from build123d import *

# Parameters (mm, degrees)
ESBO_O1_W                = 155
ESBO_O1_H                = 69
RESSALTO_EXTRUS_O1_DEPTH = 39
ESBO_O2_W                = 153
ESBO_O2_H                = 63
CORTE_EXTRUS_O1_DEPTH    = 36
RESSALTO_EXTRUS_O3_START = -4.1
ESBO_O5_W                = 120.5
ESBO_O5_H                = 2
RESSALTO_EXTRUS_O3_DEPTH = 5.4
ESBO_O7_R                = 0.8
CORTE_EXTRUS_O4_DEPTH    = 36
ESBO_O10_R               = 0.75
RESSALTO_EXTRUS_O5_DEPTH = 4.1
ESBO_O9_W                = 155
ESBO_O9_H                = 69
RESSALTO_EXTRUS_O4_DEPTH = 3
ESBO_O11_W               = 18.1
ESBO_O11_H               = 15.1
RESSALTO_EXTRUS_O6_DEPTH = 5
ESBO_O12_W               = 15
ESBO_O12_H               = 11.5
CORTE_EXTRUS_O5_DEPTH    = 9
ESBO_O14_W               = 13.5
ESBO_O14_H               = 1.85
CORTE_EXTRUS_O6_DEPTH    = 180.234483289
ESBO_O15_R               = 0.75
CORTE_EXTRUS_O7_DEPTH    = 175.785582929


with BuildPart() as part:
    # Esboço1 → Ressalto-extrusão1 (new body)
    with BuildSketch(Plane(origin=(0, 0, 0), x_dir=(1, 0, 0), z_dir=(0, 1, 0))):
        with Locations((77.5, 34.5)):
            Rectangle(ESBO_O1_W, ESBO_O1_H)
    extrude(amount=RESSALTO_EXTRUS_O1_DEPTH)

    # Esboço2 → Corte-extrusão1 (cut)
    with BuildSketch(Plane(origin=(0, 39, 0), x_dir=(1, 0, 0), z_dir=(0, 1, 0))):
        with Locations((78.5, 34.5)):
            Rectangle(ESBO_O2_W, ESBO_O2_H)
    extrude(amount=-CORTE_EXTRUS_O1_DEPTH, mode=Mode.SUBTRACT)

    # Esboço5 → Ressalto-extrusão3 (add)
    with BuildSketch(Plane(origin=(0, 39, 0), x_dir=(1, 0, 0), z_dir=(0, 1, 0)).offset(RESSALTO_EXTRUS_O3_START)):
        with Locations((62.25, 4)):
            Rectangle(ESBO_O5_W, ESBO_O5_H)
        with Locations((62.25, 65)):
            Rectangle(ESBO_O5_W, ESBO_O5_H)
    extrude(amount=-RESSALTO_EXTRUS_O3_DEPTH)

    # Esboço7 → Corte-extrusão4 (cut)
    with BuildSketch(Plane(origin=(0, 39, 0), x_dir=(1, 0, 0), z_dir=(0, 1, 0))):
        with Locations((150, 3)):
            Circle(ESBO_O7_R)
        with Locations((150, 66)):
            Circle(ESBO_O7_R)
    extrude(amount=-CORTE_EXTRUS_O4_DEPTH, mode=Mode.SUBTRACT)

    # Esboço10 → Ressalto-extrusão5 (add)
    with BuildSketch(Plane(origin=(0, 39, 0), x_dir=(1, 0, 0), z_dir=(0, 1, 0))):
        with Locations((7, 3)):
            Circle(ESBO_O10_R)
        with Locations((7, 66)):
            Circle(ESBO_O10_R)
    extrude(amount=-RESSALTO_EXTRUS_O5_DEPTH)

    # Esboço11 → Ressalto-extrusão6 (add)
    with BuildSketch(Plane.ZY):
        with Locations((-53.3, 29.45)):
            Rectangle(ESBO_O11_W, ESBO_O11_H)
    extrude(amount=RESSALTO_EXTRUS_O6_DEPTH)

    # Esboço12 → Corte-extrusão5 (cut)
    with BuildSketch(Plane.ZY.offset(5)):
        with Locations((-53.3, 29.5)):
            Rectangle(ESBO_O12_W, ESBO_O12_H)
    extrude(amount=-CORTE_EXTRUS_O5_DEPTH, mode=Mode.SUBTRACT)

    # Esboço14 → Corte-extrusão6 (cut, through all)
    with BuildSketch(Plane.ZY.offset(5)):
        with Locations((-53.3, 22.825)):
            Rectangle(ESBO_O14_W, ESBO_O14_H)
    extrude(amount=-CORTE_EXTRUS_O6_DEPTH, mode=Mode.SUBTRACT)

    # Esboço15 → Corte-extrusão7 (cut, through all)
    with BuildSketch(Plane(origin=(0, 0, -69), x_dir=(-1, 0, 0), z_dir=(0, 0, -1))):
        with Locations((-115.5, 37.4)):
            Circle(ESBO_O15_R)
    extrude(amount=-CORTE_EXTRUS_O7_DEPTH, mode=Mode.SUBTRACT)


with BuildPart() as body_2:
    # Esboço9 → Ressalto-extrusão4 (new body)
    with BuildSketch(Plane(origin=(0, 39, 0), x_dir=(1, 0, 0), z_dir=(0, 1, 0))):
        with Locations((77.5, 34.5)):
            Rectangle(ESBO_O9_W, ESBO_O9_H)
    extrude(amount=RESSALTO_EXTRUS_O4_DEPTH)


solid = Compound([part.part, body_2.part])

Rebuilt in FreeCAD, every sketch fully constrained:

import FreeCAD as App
import Part
import Sketcher


def add_polygon(sketch, points):
    """Adds a closed chain of lines whose ends are joined by coincident constraints."""
    first, n = sketch.GeometryCount, len(points)
    for a, b in zip(points, points[1:] + points[:1]):
        sketch.addGeometry(Part.LineSegment(App.Vector(*a, 0), App.Vector(*b, 0)), False)
    for i in range(n):
        sketch.addConstraint(Sketcher.Constraint("Coincident", first + i, 2, first + (i + 1) % n, 1))

doc = App.newDocument("Part")
body = doc.addObject("PartDesign::Body", "Body")

# Sketch on XZ plane
sketch1 = body.newObject("Sketcher::SketchObject", "Sketch")
sketch1.AttachmentSupport = (doc.getObject("XZ_Plane"), [""])
sketch1.MapMode = "FlatFace"
add_polygon(sketch1, [(0, -69), (0, 0), (155, 0), (155, -69)])  # lines 0-3
sketch1.addConstraint(Sketcher.Constraint("Vertical", 0))
sketch1.addConstraint(Sketcher.Constraint("Horizontal", 1))
sketch1.addConstraint(Sketcher.Constraint("Vertical", 2))
sketch1.addConstraint(Sketcher.Constraint("Horizontal", 3))
sketch1.addConstraint(Sketcher.Constraint("Coincident", 0, 2, -1, 1))
sketch1.addConstraint(Sketcher.Constraint("DistanceX", 1, 1, 1, 2, 155.0))
sketch1.addConstraint(Sketcher.Constraint("DistanceY", 0, 1, 0, 2, 69.0))
pad1 = body.newObject("PartDesign::Pad", "Pad")
pad1.Profile = sketch1
pad1.Length = 39
pad1.Reversed = True

# Sketch on XZ plane
sketch2 = body.newObject("Sketcher::SketchObject", "Sketch001")
sketch2.AttachmentSupport = (doc.getObject("XZ_Plane"), [""])
sketch2.MapMode = "FlatFace"
sketch2.AttachmentOffset = App.Placement(App.Vector(0, 0, -39), App.Rotation())
add_polygon(sketch2, [(2, -66), (2, -3), (155, -3), (155, -66)])  # lines 0-3
sketch2.addConstraint(Sketcher.Constraint("Vertical", 0))
sketch2.addConstraint(Sketcher.Constraint("Horizontal", 1))
sketch2.addConstraint(Sketcher.Constraint("Vertical", 2))
sketch2.addConstraint(Sketcher.Constraint("Horizontal", 3))
sketch2.addConstraint(Sketcher.Constraint("DistanceX", 1, 1, 1, 2, 153.0))
sketch2.addConstraint(Sketcher.Constraint("DistanceY", 0, 1, 0, 2, 63.0))
sketch2.addConstraint(Sketcher.Constraint("DistanceX", -1, 1, 0, 2, 2.0))
sketch2.addConstraint(Sketcher.Constraint("DistanceY", 0, 2, -1, 1, 3.0))
pocket1 = body.newObject("PartDesign::Pocket", "Pocket")
pocket1.Profile = sketch2
pocket1.Length = 36
pocket1.Reversed = True

# Sketch on XZ plane
sketch3 = body.newObject("Sketcher::SketchObject", "Sketch002")
sketch3.AttachmentSupport = (doc.getObject("XZ_Plane"), [""])
sketch3.MapMode = "FlatFace"
sketch3.AttachmentOffset = App.Placement(App.Vector(0, 0, -34.9), App.Rotation())
add_polygon(sketch3, [(2, -5), (2, -3), (122.5, -3), (122.5, -5)])  # lines 0-3
add_polygon(sketch3, [(2, -66), (2, -64), (122.5, -64), (122.5, -66)])  # lines 4-7
sketch3.addConstraint(Sketcher.Constraint("Vertical", 0))
sketch3.addConstraint(Sketcher.Constraint("Horizontal", 1))
sketch3.addConstraint(Sketcher.Constraint("Vertical", 2))
sketch3.addConstraint(Sketcher.Constraint("Horizontal", 3))
sketch3.addConstraint(Sketcher.Constraint("Vertical", 4))
sketch3.addConstraint(Sketcher.Constraint("Horizontal", 5))
sketch3.addConstraint(Sketcher.Constraint("Vertical", 6))
sketch3.addConstraint(Sketcher.Constraint("Horizontal", 7))
sketch3.addConstraint(Sketcher.Constraint("Vertical", 3, 2, 4, 2))
sketch3.addConstraint(Sketcher.Constraint("Vertical", 2, 2, 5, 2))
sketch3.addConstraint(Sketcher.Constraint("Equal", 2, 4))
sketch3.addConstraint(Sketcher.Constraint("DistanceY", 0, 1, 0, 2, 2.0))
sketch3.addConstraint(Sketcher.Constraint("DistanceX", 1, 1, 1, 2, 120.5))
sketch3.addConstraint(Sketcher.Constraint("DistanceX", -1, 1, 0, 2, 2.0))
sketch3.addConstraint(Sketcher.Constraint("DistanceY", 0, 2, -1, 1, 3.0))
sketch3.addConstraint(Sketcher.Constraint("DistanceY", 4, 2, -1, 1, 64.0))
pad2 = body.newObject("PartDesign::Pad", "Pad001")
pad2.Profile = sketch3
pad2.Length = 5.4

# Sketch on XZ plane
sketch4 = body.newObject("Sketcher::SketchObject", "Sketch003")
sketch4.AttachmentSupport = (doc.getObject("XZ_Plane"), [""])
sketch4.MapMode = "FlatFace"
sketch4.AttachmentOffset = App.Placement(App.Vector(0, 0, -39), App.Rotation())
sketch4.addGeometry(Part.Circle(App.Vector(150, -3, 0), App.Vector(0, 0, 1), 0.8), False)
sketch4.addGeometry(Part.Circle(App.Vector(150, -66, 0), App.Vector(0, 0, 1), 0.8), False)
sketch4.addConstraint(Sketcher.Constraint("Equal", 0, 1))
sketch4.addConstraint(Sketcher.Constraint("Vertical", 0, 3, 1, 3))
sketch4.addConstraint(Sketcher.Constraint("Diameter", 0, 1.6))
sketch4.addConstraint(Sketcher.Constraint("DistanceX", -1, 1, 0, 3, 150.0))
sketch4.addConstraint(Sketcher.Constraint("DistanceY", 0, 3, -1, 1, 3.0))
sketch4.addConstraint(Sketcher.Constraint("DistanceY", 1, 3, -1, 1, 66.0))
pocket2 = body.newObject("PartDesign::Pocket", "Pocket001")
pocket2.Profile = sketch4
pocket2.Length = 36
pocket2.Reversed = True

# Sketch on XZ plane
sketch5 = body.newObject("Sketcher::SketchObject", "Sketch004")
sketch5.AttachmentSupport = (doc.getObject("XZ_Plane"), [""])
sketch5.MapMode = "FlatFace"
sketch5.AttachmentOffset = App.Placement(App.Vector(0, 0, -39), App.Rotation())
sketch5.addGeometry(Part.Circle(App.Vector(7, -3, 0), App.Vector(0, 0, 1), 0.8), False)
sketch5.addGeometry(Part.Circle(App.Vector(7, -66, 0), App.Vector(0, 0, 1), 0.8), False)
sketch5.addConstraint(Sketcher.Constraint("Equal", 0, 1))
sketch5.addConstraint(Sketcher.Constraint("Vertical", 0, 3, 1, 3))
sketch5.addConstraint(Sketcher.Constraint("Diameter", 0, 1.5))
sketch5.addConstraint(Sketcher.Constraint("DistanceX", -1, 1, 0, 3, 7.0))
sketch5.addConstraint(Sketcher.Constraint("DistanceY", 0, 3, -1, 1, 3.0))
sketch5.addConstraint(Sketcher.Constraint("DistanceY", 1, 3, -1, 1, 66.0))
pad3 = body.newObject("PartDesign::Pad", "Pad002")
pad3.Profile = sketch5
pad3.Length = 4.1

# Sketch on YZ plane
sketch6 = body.newObject("Sketcher::SketchObject", "Sketch005")
sketch6.AttachmentSupport = (doc.getObject("YZ_Plane"), [""])
sketch6.MapMode = "FlatFace"
add_polygon(sketch6, [(37, -62), (22, -62), (22, -44), (37, -44)])  # lines 0-3
sketch6.addConstraint(Sketcher.Constraint("Horizontal", 0))
sketch6.addConstraint(Sketcher.Constraint("Vertical", 1))
sketch6.addConstraint(Sketcher.Constraint("Horizontal", 2))
sketch6.addConstraint(Sketcher.Constraint("Vertical", 3))
sketch6.addConstraint(Sketcher.Constraint("DistanceX", 0, 2, 0, 1, 15.1))
sketch6.addConstraint(Sketcher.Constraint("DistanceY", 1, 1, 1, 2, 18.1))
sketch6.addConstraint(Sketcher.Constraint("DistanceX", -1, 1, 2, 2, 37.0))
sketch6.addConstraint(Sketcher.Constraint("DistanceY", 0, 2, -1, 1, 62.35))
pad4 = body.newObject("PartDesign::Pad", "Pad003")
pad4.Profile = sketch6
pad4.Length = 5
pad4.Reversed = True

# Sketch on YZ plane
sketch7 = body.newObject("Sketcher::SketchObject", "Sketch006")
sketch7.AttachmentSupport = (doc.getObject("YZ_Plane"), [""])
sketch7.MapMode = "FlatFace"
sketch7.AttachmentOffset = App.Placement(App.Vector(0, 0, -5), App.Rotation())
add_polygon(sketch7, [(35, -61), (24, -61), (24, -46), (35, -46)])  # lines 0-3
sketch7.addConstraint(Sketcher.Constraint("Horizontal", 0))
sketch7.addConstraint(Sketcher.Constraint("Vertical", 1))
sketch7.addConstraint(Sketcher.Constraint("Horizontal", 2))
sketch7.addConstraint(Sketcher.Constraint("Vertical", 3))
sketch7.addConstraint(Sketcher.Constraint("DistanceY", 1, 1, 1, 2, 15.0))
sketch7.addConstraint(Sketcher.Constraint("DistanceX", 0, 2, 0, 1, 11.5))
sketch7.addConstraint(Sketcher.Constraint("DistanceY", 0, 2, -1, 1, 60.8))
sketch7.addConstraint(Sketcher.Constraint("DistanceX", -1, 1, 0, 2, 23.75))
pocket3 = body.newObject("PartDesign::Pocket", "Pocket002")
pocket3.Profile = sketch7
pocket3.Length = 9
pocket3.Reversed = True

# Sketch on YZ plane
sketch8 = body.newObject("Sketcher::SketchObject", "Sketch007")
sketch8.AttachmentSupport = (doc.getObject("YZ_Plane"), [""])
sketch8.MapMode = "FlatFace"
sketch8.AttachmentOffset = App.Placement(App.Vector(0, 0, -5), App.Rotation())
add_polygon(sketch8, [(23.8, -60), (21.9, -60), (21.9, -46.5), (23.8, -46.5)])  # lines 0-3
sketch8.addConstraint(Sketcher.Constraint("Horizontal", 0))
sketch8.addConstraint(Sketcher.Constraint("Vertical", 1))
sketch8.addConstraint(Sketcher.Constraint("Horizontal", 2))
sketch8.addConstraint(Sketcher.Constraint("Vertical", 3))
sketch8.addConstraint(Sketcher.Constraint("DistanceY", 1, 1, 1, 2, 13.5))
sketch8.addConstraint(Sketcher.Constraint("DistanceX", 0, 2, 0, 1, 1.85))
sketch8.addConstraint(Sketcher.Constraint("DistanceX", -1, 1, 0, 2, 21.9))
sketch8.addConstraint(Sketcher.Constraint("DistanceY", 0, 2, -1, 1, 60.05))
pocket4 = body.newObject("PartDesign::Pocket", "Pocket003")
pocket4.Profile = sketch8
pocket4.Type = "ThroughAll"
pocket4.Reversed = True

# Sketch on XY plane
sketch9 = body.newObject("Sketcher::SketchObject", "Sketch008")
sketch9.AttachmentSupport = (doc.getObject("XY_Plane"), [""])
sketch9.MapMode = "FlatFace"
sketch9.AttachmentOffset = App.Placement(App.Vector(0, 0, -69), App.Rotation())
sketch9.addGeometry(Part.Circle(App.Vector(115.5, 37.4, 0), App.Vector(0, 0, 1), 0.8), False)
sketch9.addConstraint(Sketcher.Constraint("Diameter", 0, 1.5))
sketch9.addConstraint(Sketcher.Constraint("DistanceX", -1, 1, 0, 3, 115.5))
sketch9.addConstraint(Sketcher.Constraint("DistanceY", -1, 1, 0, 3, 37.4))
pocket5 = body.newObject("PartDesign::Pocket", "Pocket004")
pocket5.Profile = sketch9
pocket5.Type = "ThroughAll"
pocket5.Reversed = True
body2 = doc.addObject("PartDesign::Body", "Body001")

# Sketch on XZ plane
sketch10 = body2.newObject("Sketcher::SketchObject", "Sketch009")
sketch10.AttachmentSupport = (doc.getObject("XZ_Plane001"), [""])
sketch10.MapMode = "FlatFace"
sketch10.AttachmentOffset = App.Placement(App.Vector(0, 0, -39), App.Rotation())
add_polygon(sketch10, [(0, -69), (0, 0), (155, 0), (155, -69)])  # lines 0-3
sketch10.addConstraint(Sketcher.Constraint("Vertical", 0))
sketch10.addConstraint(Sketcher.Constraint("Horizontal", 1))
sketch10.addConstraint(Sketcher.Constraint("Vertical", 2))
sketch10.addConstraint(Sketcher.Constraint("Horizontal", 3))
sketch10.addConstraint(Sketcher.Constraint("Coincident", 0, 2, -1, 1))
sketch10.addConstraint(Sketcher.Constraint("DistanceX", 1, 1, 1, 2, 155.0))
sketch10.addConstraint(Sketcher.Constraint("DistanceY", 0, 1, 0, 2, 69.0))
pad5 = body2.newObject("PartDesign::Pad", "Pad004")
pad5.Profile = sketch10
pad5.Length = 3
pad5.Reversed = True

doc.recompute()
